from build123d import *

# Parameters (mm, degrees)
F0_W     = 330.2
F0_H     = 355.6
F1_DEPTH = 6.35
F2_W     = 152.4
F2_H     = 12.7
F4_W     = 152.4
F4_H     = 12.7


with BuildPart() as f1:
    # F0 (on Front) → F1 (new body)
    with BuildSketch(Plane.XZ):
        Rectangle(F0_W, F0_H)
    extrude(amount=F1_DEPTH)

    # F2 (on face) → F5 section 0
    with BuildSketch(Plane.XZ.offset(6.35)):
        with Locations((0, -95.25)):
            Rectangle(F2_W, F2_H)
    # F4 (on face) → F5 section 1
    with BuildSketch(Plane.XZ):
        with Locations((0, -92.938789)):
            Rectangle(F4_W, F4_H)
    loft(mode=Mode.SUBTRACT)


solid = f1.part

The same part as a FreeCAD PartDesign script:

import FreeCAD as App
import Part
import Sketcher
Q = App.Units.Quantity

doc = App.newDocument("Part")
body = doc.addObject("PartDesign::Body", "Body")

sketch1 = doc.addObject("Sketcher::SketchObject", "Sketch")
body.addObject(sketch1)
sketch1.AttachmentSupport = (doc.XZ_Plane, [""])
sketch1.MapMode = "FlatFace"
sketch1.addGeometry(Part.LineSegment(App.Vector(-165.1, 177.8, 0), App.Vector(-165.1, -177.8, 0)), False)
sketch1.addGeometry(Part.LineSegment(App.Vector(-165.1, -177.8, 0), App.Vector(165.1, -177.8, 0)), False)
sketch1.addGeometry(Part.LineSegment(App.Vector(165.1, -177.8, 0), App.Vector(165.1, 177.8, 0)), False)
sketch1.addGeometry(Part.LineSegment(App.Vector(165.1, 177.8, 0), App.Vector(-165.1, 177.8, 0)), False)
sketch1.addConstraint(Sketcher.Constraint("Coincident", 0, 2, 1, 1))
sketch1.addConstraint(Sketcher.Constraint("Coincident", 1, 2, 2, 1))
sketch1.addConstraint(Sketcher.Constraint("Coincident", 2, 2, 3, 1))
sketch1.addConstraint(Sketcher.Constraint("Coincident", 3, 2, 0, 1))
sketch1.addConstraint(Sketcher.Constraint("Vertical", 0))
sketch1.addConstraint(Sketcher.Constraint("Horizontal", 1))
sketch1.addConstraint(Sketcher.Constraint("Vertical", 2))
sketch1.addConstraint(Sketcher.Constraint("Horizontal", 3))
sketch1.addConstraint(Sketcher.Constraint("Symmetric", 0, 2, 2, 2, -1, 1))
sketch1.addConstraint(Sketcher.Constraint("DistanceX", 1, 1, 1, 2, Q("13 in")))
sketch1.addConstraint(Sketcher.Constraint("DistanceY", 0, 2, 0, 1, Q("14 in")))
pad1 = doc.addObject("PartDesign::Pad", "Pad")
body.addObject(pad1)
pad1.Profile = sketch1
pad1.Length = Q("0.25 in")

sketch2 = doc.addObject("Sketcher::SketchObject", "Sketch001")
body.addObject(sketch2)
sketch2.AttachmentSupport = (doc.XZ_Plane, [""])
sketch2.MapMode = "FlatFace"
sketch2.AttachmentOffset = App.Placement(App.Vector(0, 0, 0.25 * 25.4), App.Rotation())
sketch2.addGeometry(Part.LineSegment(App.Vector(-76.2, -88.9, 0), App.Vector(-76.2, -101.6, 0)), False)
sketch2.addGeometry(Part.LineSegment(App.Vector(-76.2, -101.6, 0), App.Vector(76.2, -101.6, 0)), False)
sketch2.addGeometry(Part.LineSegment(App.Vector(76.2, -101.6, 0), App.Vector(76.2, -88.9, 0)), False)
sketch2.addGeometry(Part.LineSegment(App.Vector(76.2, -88.9, 0), App.Vector(-76.2, -88.9, 0)), False)
sketch2.addConstraint(Sketcher.Constraint("Coincident", 0, 2, 1, 1))
sketch2.addConstraint(Sketcher.Constraint("Coincident", 1, 2, 2, 1))
sketch2.addConstraint(Sketcher.Constraint("Coincident", 2, 2, 3, 1))
sketch2.addConstraint(Sketcher.Constraint("Coincident", 3, 2, 0, 1))
sketch2.addConstraint(Sketcher.Constraint("Vertical", 0))
sketch2.addConstraint(Sketcher.Constraint("Horizontal", 1))
sketch2.addConstraint(Sketcher.Constraint("Vertical", 2))
sketch2.addConstraint(Sketcher.Constraint("Horizontal", 3))
sketch2.addConstraint(Sketcher.Constraint("DistanceX", 1, 1, 1, 2, Q("6 in")))
sketch2.addConstraint(Sketcher.Constraint("DistanceY", 0, 2, 0, 1, Q("0.5 in")))
sketch2.addConstraint(Sketcher.Constraint("DistanceX", 0, 2, -1, 1, Q("3 in")))
sketch2.addConstraint(Sketcher.Constraint("DistanceY", 0, 2, -1, 1, Q("4 in")))

sketch3 = doc.addObject("Sketcher::SketchObject", "Sketch002")
body.addObject(sketch3)
sketch3.AttachmentSupport = (doc.XZ_Plane, [""])
sketch3.MapMode = "FlatFace"
sketch3.addGeometry(Part.LineSegment(App.Vector(-76.2, -86.588789, 0), App.Vector(-76.2, -99.288789, 0)), False)
sketch3.addGeometry(Part.LineSegment(App.Vector(-76.2, -99.288789, 0), App.Vector(76.2, -99.288789, 0)), False)
sketch3.addGeometry(Part.LineSegment(App.Vector(76.2, -99.288789, 0), App.Vector(76.2, -86.588789, 0)), False)
sketch3.addGeometry(Part.LineSegment(App.Vector(76.2, -86.588789, 0), App.Vector(-76.2, -86.588789, 0)), False)
sketch3.addConstraint(Sketcher.Constraint("Coincident", 0, 2, 1, 1))
sketch3.addConstraint(Sketcher.Constraint("Coincident", 1, 2, 2, 1))
sketch3.addConstraint(Sketcher.Constraint("Coincident", 2, 2, 3, 1))
sketch3.addConstraint(Sketcher.Constraint("Coincident", 3, 2, 0, 1))
sketch3.addConstraint(Sketcher.Constraint("Vertical", 0))
sketch3.addConstraint(Sketcher.Constraint("Horizontal", 1))
sketch3.addConstraint(Sketcher.Constraint("Vertical", 2))
sketch3.addConstraint(Sketcher.Constraint("Horizontal", 3))
sketch3.addConstraint(Sketcher.Constraint("DistanceX", 1, 1, 1, 2, Q("6 in")))
sketch3.addConstraint(Sketcher.Constraint("DistanceY", 0, 2, 0, 1, Q("0.5 in")))
sketch3.addConstraint(Sketcher.Constraint("DistanceX", 0, 2, -1, 1, Q("3 in")))
sketch3.addConstraint(Sketcher.Constraint("DistanceY", 0, 2, -1, 1, 99.288789))

subtractiveloft = doc.addObject("PartDesign::SubtractiveLoft", "SubtractiveLoft")
body.addObject(subtractiveloft)
subtractiveloft.Profile = sketch2
subtractiveloft.Sections = [sketch3]

doc.recompute()
